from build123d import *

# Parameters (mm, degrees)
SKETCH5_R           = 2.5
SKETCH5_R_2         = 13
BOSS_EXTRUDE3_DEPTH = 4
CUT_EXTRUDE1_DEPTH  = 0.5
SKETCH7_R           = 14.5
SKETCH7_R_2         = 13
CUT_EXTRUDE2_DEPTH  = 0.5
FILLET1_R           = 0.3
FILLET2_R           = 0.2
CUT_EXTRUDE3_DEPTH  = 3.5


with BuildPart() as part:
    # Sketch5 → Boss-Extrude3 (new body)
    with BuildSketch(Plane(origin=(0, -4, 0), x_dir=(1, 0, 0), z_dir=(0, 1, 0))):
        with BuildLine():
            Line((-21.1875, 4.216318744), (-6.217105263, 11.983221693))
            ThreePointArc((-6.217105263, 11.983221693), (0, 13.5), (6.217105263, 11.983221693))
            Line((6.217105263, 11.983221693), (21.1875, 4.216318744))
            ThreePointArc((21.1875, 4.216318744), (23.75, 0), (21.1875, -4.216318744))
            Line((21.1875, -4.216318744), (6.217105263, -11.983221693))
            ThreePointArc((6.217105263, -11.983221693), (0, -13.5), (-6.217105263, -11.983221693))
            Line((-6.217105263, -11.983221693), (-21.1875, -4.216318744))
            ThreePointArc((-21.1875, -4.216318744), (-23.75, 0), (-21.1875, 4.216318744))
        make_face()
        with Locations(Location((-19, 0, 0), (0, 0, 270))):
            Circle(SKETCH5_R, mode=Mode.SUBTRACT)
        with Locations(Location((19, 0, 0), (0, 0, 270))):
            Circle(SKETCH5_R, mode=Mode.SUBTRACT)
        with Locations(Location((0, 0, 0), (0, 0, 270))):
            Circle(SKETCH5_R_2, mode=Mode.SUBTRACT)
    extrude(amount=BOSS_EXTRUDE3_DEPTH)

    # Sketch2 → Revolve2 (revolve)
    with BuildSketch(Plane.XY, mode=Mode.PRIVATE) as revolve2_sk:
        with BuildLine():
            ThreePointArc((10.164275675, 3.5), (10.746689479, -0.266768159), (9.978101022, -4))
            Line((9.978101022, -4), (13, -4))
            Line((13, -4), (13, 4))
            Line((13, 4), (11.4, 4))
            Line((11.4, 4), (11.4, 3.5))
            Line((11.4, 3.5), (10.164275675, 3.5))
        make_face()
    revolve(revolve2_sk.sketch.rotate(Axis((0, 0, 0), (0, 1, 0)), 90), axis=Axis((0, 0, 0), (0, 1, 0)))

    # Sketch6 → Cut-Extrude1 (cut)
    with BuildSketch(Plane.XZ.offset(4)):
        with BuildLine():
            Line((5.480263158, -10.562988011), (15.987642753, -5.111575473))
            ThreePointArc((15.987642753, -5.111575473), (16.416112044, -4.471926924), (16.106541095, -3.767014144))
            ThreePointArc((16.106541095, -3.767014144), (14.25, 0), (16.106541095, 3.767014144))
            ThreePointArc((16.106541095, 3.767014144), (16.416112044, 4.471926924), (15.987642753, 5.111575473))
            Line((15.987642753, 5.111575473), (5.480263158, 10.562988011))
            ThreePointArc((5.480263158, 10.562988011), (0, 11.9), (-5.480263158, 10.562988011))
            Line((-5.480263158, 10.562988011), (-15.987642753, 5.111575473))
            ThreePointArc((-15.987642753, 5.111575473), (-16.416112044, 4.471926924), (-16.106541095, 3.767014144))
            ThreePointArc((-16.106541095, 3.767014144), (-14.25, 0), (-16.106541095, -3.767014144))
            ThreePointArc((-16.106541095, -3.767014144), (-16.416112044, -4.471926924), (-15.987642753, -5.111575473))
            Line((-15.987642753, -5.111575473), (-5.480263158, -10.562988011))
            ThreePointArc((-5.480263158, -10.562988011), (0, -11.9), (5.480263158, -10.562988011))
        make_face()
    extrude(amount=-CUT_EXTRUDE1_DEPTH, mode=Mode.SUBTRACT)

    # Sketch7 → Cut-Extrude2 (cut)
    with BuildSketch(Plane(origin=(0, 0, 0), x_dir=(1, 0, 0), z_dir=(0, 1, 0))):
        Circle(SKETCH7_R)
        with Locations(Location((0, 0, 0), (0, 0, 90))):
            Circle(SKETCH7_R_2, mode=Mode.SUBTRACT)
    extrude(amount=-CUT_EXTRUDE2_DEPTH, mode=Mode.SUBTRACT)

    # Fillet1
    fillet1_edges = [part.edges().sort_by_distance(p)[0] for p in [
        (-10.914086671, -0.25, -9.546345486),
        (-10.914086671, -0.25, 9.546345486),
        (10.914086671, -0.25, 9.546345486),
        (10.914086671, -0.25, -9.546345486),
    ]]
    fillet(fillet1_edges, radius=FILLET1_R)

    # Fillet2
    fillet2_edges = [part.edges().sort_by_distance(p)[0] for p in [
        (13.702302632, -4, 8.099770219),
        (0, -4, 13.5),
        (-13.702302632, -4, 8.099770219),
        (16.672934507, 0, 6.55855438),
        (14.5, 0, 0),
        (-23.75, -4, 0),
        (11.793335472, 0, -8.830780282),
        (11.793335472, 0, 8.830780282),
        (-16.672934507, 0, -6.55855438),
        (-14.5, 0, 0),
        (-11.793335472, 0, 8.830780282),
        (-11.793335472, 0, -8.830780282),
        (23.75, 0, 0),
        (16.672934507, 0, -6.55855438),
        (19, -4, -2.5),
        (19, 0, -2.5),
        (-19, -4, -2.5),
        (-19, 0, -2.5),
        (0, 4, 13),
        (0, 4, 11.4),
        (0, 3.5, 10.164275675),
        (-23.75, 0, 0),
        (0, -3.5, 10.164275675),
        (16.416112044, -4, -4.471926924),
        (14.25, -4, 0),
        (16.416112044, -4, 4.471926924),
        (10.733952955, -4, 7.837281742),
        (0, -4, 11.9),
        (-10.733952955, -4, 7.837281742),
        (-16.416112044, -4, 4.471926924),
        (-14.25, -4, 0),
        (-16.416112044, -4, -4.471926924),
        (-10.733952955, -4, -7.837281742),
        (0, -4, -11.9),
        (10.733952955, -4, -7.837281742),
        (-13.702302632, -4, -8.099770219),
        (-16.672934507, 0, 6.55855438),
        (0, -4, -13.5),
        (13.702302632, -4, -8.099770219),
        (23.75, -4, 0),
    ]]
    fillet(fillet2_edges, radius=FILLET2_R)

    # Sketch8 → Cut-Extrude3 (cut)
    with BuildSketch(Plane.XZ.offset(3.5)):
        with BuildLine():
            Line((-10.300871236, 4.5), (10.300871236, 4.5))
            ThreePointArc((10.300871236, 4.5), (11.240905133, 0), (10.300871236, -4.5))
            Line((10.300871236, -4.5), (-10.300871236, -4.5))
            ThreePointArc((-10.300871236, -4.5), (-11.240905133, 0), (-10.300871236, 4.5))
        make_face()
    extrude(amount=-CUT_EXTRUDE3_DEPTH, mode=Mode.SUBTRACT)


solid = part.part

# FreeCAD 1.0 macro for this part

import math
import FreeCAD as App
import Part
import Sketcher
Q = App.Units.Quantity


def edges_at(feature, points):
    """Names of the edges that pass closest to the given points."""
    edges = feature.Shape.Edges
    near = lambda p: min(range(len(edges)), key=lambda i: edges[i].distToShape(Part.Vertex(*p))[0])
    return sorted({f"Edge{near(p) + 1}" for p in points})

doc = App.newDocument("Part")
body = doc.addObject("PartDesign::Body", "Body")

sketch1 = doc.addObject("Sketcher::SketchObject", "Sketch")
body.addObject(sketch1)
sketch1.AttachmentSupport = (doc.XZ_Plane, [""])
sketch1.MapMode = "FlatFace"
sketch1.AttachmentOffset = App.Placement(App.Vector(0, 0, 4), App.Rotation())
sketch1.addGeometry([
    Part.LineSegment(App.Vector(-6.217105, -11.983222, 0), App.Vector(-21.1875, -4.216319, 0)),
    Part.ArcOfCircle(Part.Circle(App.Vector(-19, 0, 0), App.Vector(0, 0, 1), 4.75), math.radians(117.421075), math.radians(242.578925)),
    Part.LineSegment(App.Vector(-21.1875, 4.216319, 0), App.Vector(-6.217105, 11.983222, 0)),
    Part.ArcOfCircle(Part.Circle(App.Vector(0, 0, 0), App.Vector(0, 0, 1), 13.5), math.radians(62.578925), math.radians(117.421075)),
    Part.LineSegment(App.Vector(6.217105, 11.983222, 0), App.Vector(21.1875, 4.216319, 0)),
    Part.ArcOfCircle(Part.Circle(App.Vector(19, 0, 0), App.Vector(0, 0, 1), 4.75), math.radians(-62.578925), math.radians(62.578925)),
    Part.LineSegment(App.Vector(21.1875, -4.216319, 0), App.Vector(6.217105, -11.983222, 0)),
    Part.ArcOfCircle(Part.Circle(App.Vector(0, 0, 0), App.Vector(0, 0, 1), 13.5), math.radians(-117.421075), math.radians(-62.578925)),
    Part.Circle(App.Vector(19, 0, 0), App.Vector(0, 0, 1), 2.5),
    Part.Circle(App.Vector(0, 0, 0), App.Vector(0, 0, 1), 13),
    Part.Circle(App.Vector(-19, 0, 0), App.Vector(0, 0, 1), 2.5),
], False)
sketch1.addConstraint([
    Sketcher.Constraint("Tangent", 0, 2, 1, 2),
    Sketcher.Constraint("Tangent", 1, 1, 2, 1),
    Sketcher.Constraint("Tangent", 2, 2, 3, 2),
    Sketcher.Constraint("Tangent", 3, 1, 4, 1),
    Sketcher.Constraint("Tangent", 4, 2, 5, 2),
    Sketcher.Constraint("Tangent", 5, 1, 6, 1),
    Sketcher.Constraint("Tangent", 6, 2, 7, 2),
    Sketcher.Constraint("Tangent", 7, 1, 0, 1),
    Sketcher.Constraint("Coincident", 3, 3, -1, 1),
    Sketcher.Constraint("Coincident", 7, 3, -1, 1),
    Sketcher.Constraint("Coincident", 9, 3, -1, 1),
    Sketcher.Constraint("Coincident", 8, 3, 5, 3),
    Sketcher.Constraint("Coincident", 10, 3, 1, 3),
    Sketcher.Constraint("Equal", 1, 5),
    Sketcher.Constraint("Equal", 3, 7),
    Sketcher.Constraint("Equal", 8, 10),
    Sketcher.Constraint("Symmetric", 1, 3, 5, 3, -1, 1),
    Sketcher.Constraint("PointOnObject", 1, 3, -1),
    Sketcher.Constraint("Diameter", 8, Q("5 mm")),
    Sketcher.Constraint("Diameter", 9, Q("26 mm")),
    Sketcher.Constraint("Radius", 3, Q("13.5 mm")),
    Sketcher.Constraint("Radius", 1, Q("4.75 mm")),
    Sketcher.Constraint("DistanceX", 1, 3, -1, 1, Q("19 mm")),
])
pad1 = doc.addObject("PartDesign::Pad", "Pad")
body.addObject(pad1)
pad1.Profile = sketch1
pad1.Length = 4
pad1.Reversed = True

sketch2 = doc.addObject("Sketcher::SketchObject", "Sketch001")
body.addObject(sketch2)
sketch2.AttachmentSupport = (doc.XY_Plane, [""])
sketch2.MapMode = "FlatFace"
sketch2.addGeometry([
    Part.ArcOfCircle(Part.Circle(App.Vector(0, 0, 0), App.Vector(0, 0, 1), 10.75), math.radians(-21.844757), math.radians(19.000802)),
    Part.LineSegment(App.Vector(9.978101, -4, 0), App.Vector(13, -4, 0)),
    Part.LineSegment(App.Vector(13, -4, 0), App.Vector(13, 4, 0)),
    Part.LineSegment(App.Vector(13, 4, 0), App.Vector(11.4, 4, 0)),
    Part.LineSegment(App.Vector(11.4, 4, 0), App.Vector(11.4, 3.5, 0)),
    Part.LineSegment(App.Vector(11.4, 3.5, 0), App.Vector(10.164276, 3.5, 0)),
], False)
sketch2.addConstraint([
    Sketcher.Constraint("Coincident", 0, 1, 1, 1),
    Sketcher.Constraint("Coincident", 1, 2, 2, 1),
    Sketcher.Constraint("Coincident", 2, 2, 3, 1),
    Sketcher.Constraint("Coincident", 3, 2, 4, 1),
    Sketcher.Constraint("Coincident", 4, 2, 5, 1),
    Sketcher.Constraint("Coincident", 5, 2, 0, 2),
    Sketcher.Constraint("Horizontal", 1),
    Sketcher.Constraint("Vertical", 2),
    Sketcher.Constraint("Horizontal", 3),
    Sketcher.Constraint("Vertical", 4),
    Sketcher.Constraint("Horizontal", 5),
    Sketcher.Constraint("Coincident", 0, 3, -1, 1),
    Sketcher.Constraint("DistanceY", 2, 1, 2, 2, Q("8 mm")),
    Sketcher.Constraint("Radius", 0, Q("10.75 mm")),
    Sketcher.Constraint("DistanceX", 3, 2, 3, 1, Q("1.6 mm")),
    Sketcher.Constraint("DistanceY", 4, 2, 4, 1, Q("0.5 mm")),
    Sketcher.Constraint("DistanceY", 0, 1, -1, 1, Q("4 mm")),
    Sketcher.Constraint("DistanceX", -1, 1, 1, 2, Q("13 mm")),
])
revolution = doc.addObject("PartDesign::Revolution", "Revolution")
body.addObject(revolution)
revolution.Profile = sketch2
revolution.ReferenceAxis = (sketch2, ["V_Axis"])
revolution.Angle = 360

sketch3 = doc.addObject("Sketcher::SketchObject", "Sketch002")
body.addObject(sketch3)
sketch3.AttachmentSupport = (doc.XZ_Plane, [""])
sketch3.MapMode = "FlatFace"
sketch3.AttachmentOffset = App.Placement(App.Vector(0, 0, 4), App.Rotation())
sketch3.addGeometry([
    Part.LineSegment(App.Vector(5.480263, -10.562988, 0), App.Vector(15.987643, -5.111575, 0)),
    Part.ArcOfCircle(Part.Circle(App.Vector(15.619222, -4.401459, 0), App.Vector(0, 0, 1), 0.8), math.radians(-62.578925), math.radians(52.471987)),
    Part.ArcOfCircle(Part.Circle(App.Vector(19, 0, 0), App.Vector(0, 0, 1), 4.75), math.radians(127.528013), math.radians(232.471987)),
    Part.ArcOfCircle(Part.Circle(App.Vector(15.619222, 4.401459, 0), App.Vector(0, 0, 1), 0.8), math.radians(-52.471987), math.radians(62.578925)),
    Part.LineSegment(App.Vector(15.987643, 5.111575, 0), App.Vector(5.480263, 10.562988, 0)),
    Part.ArcOfCircle(Part.Circle(App.Vector(0, 0, 0), App.Vector(0, 0, 1), 11.9), math.radians(62.578925), math.radians(117.421075)),
    Part.LineSegment(App.Vector(-5.480263, 10.562988, 0), App.Vector(-15.987643, 5.111575, 0)),
    Part.ArcOfCircle(Part.Circle(App.Vector(-15.619222, 4.401459, 0), App.Vector(0, 0, 1), 0.8), math.radians(117.421075), math.radians(232.471987)),
    Part.ArcOfCircle(Part.Circle(App.Vector(-19, 0, 0), App.Vector(0, 0, 1), 4.75), math.radians(-52.471987), math.radians(52.471987)),
    Part.ArcOfCircle(Part.Circle(App.Vector(-15.619222, -4.401459, 0), App.Vector(0, 0, 1), 0.8), math.radians(127.528013), math.radians(242.578925)),
    Part.LineSegment(App.Vector(-15.987643, -5.111575, 0), App.Vector(-5.480263, -10.562988, 0)),
    Part.ArcOfCircle(Part.Circle(App.Vector(0, 0, 0), App.Vector(0, 0, 1), 11.9), math.radians(-117.421075), math.radians(-62.578925)),
], False)
sketch3.addConstraint([
    Sketcher.Constraint("Tangent", 0, 2, 1, 1),
    Sketcher.Constraint("Tangent", 1, 2, 2, 2),
    Sketcher.Constraint("Tangent", 2, 1, 3, 1),
    Sketcher.Constraint("Tangent", 3, 2, 4, 1),
    Sketcher.Constraint("Tangent", 4, 2, 5, 1),
    Sketcher.Constraint("Tangent", 5, 2, 6, 1),
    Sketcher.Constraint("Tangent", 6, 2, 7, 1),
    Sketcher.Constraint("Tangent", 7, 2, 8, 2),
    Sketcher.Constraint("Tangent", 8, 1, 9, 1),
    Sketcher.Constraint("Tangent", 9, 2, 10, 1),
    Sketcher.Constraint("Tangent", 10, 2, 11, 1),
    Sketcher.Constraint("Tangent", 11, 2, 0, 1),
    Sketcher.Constraint("Coincident", 5, 3, -1, 1),
    Sketcher.Constraint("Coincident", 11, 3, -1, 1),
    Sketcher.Constraint("Equal", 1, 3),
    Sketcher.Constraint("Equal", 3, 7),
    Sketcher.Constraint("Equal", 2, 8),
    Sketcher.Constraint("Equal", 7, 9),
    Sketcher.Constraint("Equal", 5, 11),
    Sketcher.Constraint("Symmetric", 1, 3, 7, 3, -1, 1),
    Sketcher.Constraint("Symmetric", 3, 3, 9, 3, -1, 1),
    Sketcher.Constraint("Symmetric", 3, 3, 7, 3, -2),
    Sketcher.Constraint("Radius", 1, Q("0.8 mm")),
    Sketcher.Constraint("Radius", 5, Q("11.9 mm")),
    Sketcher.Constraint("Radius", 2, Q("4.75 mm")),
    Sketcher.Constraint("DistanceX", -1, 1, 2, 3, Q("19 mm")),
    Sketcher.Constraint("DistanceX", 0, 2, 1, 2, Q("0.118898 mm")),
])
pocket1 = doc.addObject("PartDesign::Pocket", "Pocket")
body.addObject(pocket1)
pocket1.Profile = sketch3
pocket1.Length = 0.5

sketch4 = doc.addObject("Sketcher::SketchObject", "Sketch003")
body.addObject(sketch4)
sketch4.AttachmentSupport = (doc.XZ_Plane, [""])
sketch4.MapMode = "FlatFace"
sketch4.addGeometry([
    Part.Circle(App.Vector(0, 0, 0), App.Vector(0, 0, 1), 14.5),
    Part.Circle(App.Vector(0, 0, 0), App.Vector(0, 0, 1), 13),
], False)
sketch4.addConstraint([
    Sketcher.Constraint("Coincident", 0, 3, -1, 1),
    Sketcher.Constraint("Coincident", 1, 3, -1, 1),
    Sketcher.Constraint("Diameter", 0, Q("29 mm")),
    Sketcher.Constraint("Diameter", 1, Q("26 mm")),
])
pocket2 = doc.addObject("PartDesign::Pocket", "Pocket001")
body.addObject(pocket2)
pocket2.Profile = sketch4
pocket2.Length = 0.5
pocket2.Reversed = True
doc.recompute()

fillet = doc.addObject("PartDesign::Fillet", "Fillet")
body.addObject(fillet)
fillet.Base = (pocket2, edges_at(pocket2, [
    (-10.914, -0.25, -9.546),
    (-10.914, -0.25, 9.546),
    (10.914, -0.25, 9.546),
    (10.914, -0.25, -9.546),
]))
fillet.Radius = 0.3
doc.recompute()

fillet2 = doc.addObject("PartDesign::Fillet", "Fillet001")
body.addObject(fillet2)
fillet2.Base = (fillet, edges_at(fillet, [
    (13.702, -4, 8.1),
    (0, -4, 13.5),
    (-13.702, -4, 8.1),
    (16.673, 0, 6.559),
    (14.5, 0, 0),
    (-23.75, -4, 0),
    (11.793, 0, -8.831),
    (11.793, 0, 8.831),
    (-16.673, 0, -6.559),
    (-14.5, 0, 0),
    (-11.793, 0, 8.831),
    (-11.793, 0, -8.831),
    (23.75, 0, 0),
    (16.673, 0, -6.559),
    (19, -4, -2.5),
    (19, 0, -2.5),
    (-19, -4, -2.5),
    (-19, 0, -2.5),
    (0, 4, 13),
    (0, 4, 11.4),
    (0, 3.5, 10.164),
    (-23.75, 0, 0),
    (0, -3.5, 10.164),
    (16.416, -4, -4.472),
    (14.25, -4, 0),
    (16.416, -4, 4.472),
    (10.734, -4, 7.837),
    (0, -4, 11.9),
    (-10.734, -4, 7.837),
    (-16.416, -4, 4.472),
    (-14.25, -4, 0),
    (-16.416, -4, -4.472),
    (-10.734, -4, -7.837),
    (0, -4, -11.9),
    (10.734, -4, -7.837),
    (-13.702, -4, -8.1),
    (-16.673, 0, 6.559),
    (0, -4, -13.5),
    (13.702, -4, -8.1),
    (23.75, -4, 0),
]))
fillet2.Radius = 0.2

sketch5 = doc.addObject("Sketcher::SketchObject", "Sketch004")
body.addObject(sketch5)
sketch5.AttachmentSupport = (doc.XZ_Plane, [""])
sketch5.MapMode = "FlatFace"
sketch5.AttachmentOffset = App.Placement(App.Vector(0, 0, 3.5), App.Rotation())
sketch5.addGeometry([
    Part.LineSegment(App.Vector(10.300871, 4.5, 0), App.Vector(-10.300871, 4.5, 0)),
    Part.ArcOfCircle(Part.Circle(App.Vector(0, 0, 0), App.Vector(0, 0, 1), 11.240905), math.radians(156.401588), math.radians(203.598412)),
    Part.LineSegment(App.Vector(-10.300871, -4.5, 0), App.Vector(10.300871, -4.5, 0)),
    Part.ArcOfCircle(Part.Circle(App.Vector(0, 0, 0), App.Vector(0, 0, 1), 11.240905), math.radians(-23.598412), math.radians(23.598412)),
], False)
sketch5.addConstraint([
    Sketcher.Constraint("Coincident", 0, 2, 1, 1),
    Sketcher.Constraint("Coincident", 1, 2, 2, 1),
    Sketcher.Constraint("Coincident", 2, 2, 3, 1),
    Sketcher.Constraint("Coincident", 3, 2, 0, 1),
    Sketcher.Constraint("Horizontal", 0),
    Sketcher.Constraint("Horizontal", 2),
    Sketcher.Constraint("Coincident", 1, 3, -1, 1),
    Sketcher.Constraint("Coincident", 3, 3, -1, 1),
    Sketcher.Constraint("Equal", 1, 3),
    Sketcher.Constraint("Vertical", 0, 2, 1, 2),
    Sketcher.Constraint("DistanceY", 1, 2, 0, 2, Q("9 mm")),
    Sketcher.Constraint("Radius", 1, Q("11.240905 mm")),
])
pocket3 = doc.addObject("PartDesign::Pocket", "Pocket002")
body.addObject(pocket3)
pocket3.Profile = sketch5
pocket3.Length = 3.5

doc.recompute()
